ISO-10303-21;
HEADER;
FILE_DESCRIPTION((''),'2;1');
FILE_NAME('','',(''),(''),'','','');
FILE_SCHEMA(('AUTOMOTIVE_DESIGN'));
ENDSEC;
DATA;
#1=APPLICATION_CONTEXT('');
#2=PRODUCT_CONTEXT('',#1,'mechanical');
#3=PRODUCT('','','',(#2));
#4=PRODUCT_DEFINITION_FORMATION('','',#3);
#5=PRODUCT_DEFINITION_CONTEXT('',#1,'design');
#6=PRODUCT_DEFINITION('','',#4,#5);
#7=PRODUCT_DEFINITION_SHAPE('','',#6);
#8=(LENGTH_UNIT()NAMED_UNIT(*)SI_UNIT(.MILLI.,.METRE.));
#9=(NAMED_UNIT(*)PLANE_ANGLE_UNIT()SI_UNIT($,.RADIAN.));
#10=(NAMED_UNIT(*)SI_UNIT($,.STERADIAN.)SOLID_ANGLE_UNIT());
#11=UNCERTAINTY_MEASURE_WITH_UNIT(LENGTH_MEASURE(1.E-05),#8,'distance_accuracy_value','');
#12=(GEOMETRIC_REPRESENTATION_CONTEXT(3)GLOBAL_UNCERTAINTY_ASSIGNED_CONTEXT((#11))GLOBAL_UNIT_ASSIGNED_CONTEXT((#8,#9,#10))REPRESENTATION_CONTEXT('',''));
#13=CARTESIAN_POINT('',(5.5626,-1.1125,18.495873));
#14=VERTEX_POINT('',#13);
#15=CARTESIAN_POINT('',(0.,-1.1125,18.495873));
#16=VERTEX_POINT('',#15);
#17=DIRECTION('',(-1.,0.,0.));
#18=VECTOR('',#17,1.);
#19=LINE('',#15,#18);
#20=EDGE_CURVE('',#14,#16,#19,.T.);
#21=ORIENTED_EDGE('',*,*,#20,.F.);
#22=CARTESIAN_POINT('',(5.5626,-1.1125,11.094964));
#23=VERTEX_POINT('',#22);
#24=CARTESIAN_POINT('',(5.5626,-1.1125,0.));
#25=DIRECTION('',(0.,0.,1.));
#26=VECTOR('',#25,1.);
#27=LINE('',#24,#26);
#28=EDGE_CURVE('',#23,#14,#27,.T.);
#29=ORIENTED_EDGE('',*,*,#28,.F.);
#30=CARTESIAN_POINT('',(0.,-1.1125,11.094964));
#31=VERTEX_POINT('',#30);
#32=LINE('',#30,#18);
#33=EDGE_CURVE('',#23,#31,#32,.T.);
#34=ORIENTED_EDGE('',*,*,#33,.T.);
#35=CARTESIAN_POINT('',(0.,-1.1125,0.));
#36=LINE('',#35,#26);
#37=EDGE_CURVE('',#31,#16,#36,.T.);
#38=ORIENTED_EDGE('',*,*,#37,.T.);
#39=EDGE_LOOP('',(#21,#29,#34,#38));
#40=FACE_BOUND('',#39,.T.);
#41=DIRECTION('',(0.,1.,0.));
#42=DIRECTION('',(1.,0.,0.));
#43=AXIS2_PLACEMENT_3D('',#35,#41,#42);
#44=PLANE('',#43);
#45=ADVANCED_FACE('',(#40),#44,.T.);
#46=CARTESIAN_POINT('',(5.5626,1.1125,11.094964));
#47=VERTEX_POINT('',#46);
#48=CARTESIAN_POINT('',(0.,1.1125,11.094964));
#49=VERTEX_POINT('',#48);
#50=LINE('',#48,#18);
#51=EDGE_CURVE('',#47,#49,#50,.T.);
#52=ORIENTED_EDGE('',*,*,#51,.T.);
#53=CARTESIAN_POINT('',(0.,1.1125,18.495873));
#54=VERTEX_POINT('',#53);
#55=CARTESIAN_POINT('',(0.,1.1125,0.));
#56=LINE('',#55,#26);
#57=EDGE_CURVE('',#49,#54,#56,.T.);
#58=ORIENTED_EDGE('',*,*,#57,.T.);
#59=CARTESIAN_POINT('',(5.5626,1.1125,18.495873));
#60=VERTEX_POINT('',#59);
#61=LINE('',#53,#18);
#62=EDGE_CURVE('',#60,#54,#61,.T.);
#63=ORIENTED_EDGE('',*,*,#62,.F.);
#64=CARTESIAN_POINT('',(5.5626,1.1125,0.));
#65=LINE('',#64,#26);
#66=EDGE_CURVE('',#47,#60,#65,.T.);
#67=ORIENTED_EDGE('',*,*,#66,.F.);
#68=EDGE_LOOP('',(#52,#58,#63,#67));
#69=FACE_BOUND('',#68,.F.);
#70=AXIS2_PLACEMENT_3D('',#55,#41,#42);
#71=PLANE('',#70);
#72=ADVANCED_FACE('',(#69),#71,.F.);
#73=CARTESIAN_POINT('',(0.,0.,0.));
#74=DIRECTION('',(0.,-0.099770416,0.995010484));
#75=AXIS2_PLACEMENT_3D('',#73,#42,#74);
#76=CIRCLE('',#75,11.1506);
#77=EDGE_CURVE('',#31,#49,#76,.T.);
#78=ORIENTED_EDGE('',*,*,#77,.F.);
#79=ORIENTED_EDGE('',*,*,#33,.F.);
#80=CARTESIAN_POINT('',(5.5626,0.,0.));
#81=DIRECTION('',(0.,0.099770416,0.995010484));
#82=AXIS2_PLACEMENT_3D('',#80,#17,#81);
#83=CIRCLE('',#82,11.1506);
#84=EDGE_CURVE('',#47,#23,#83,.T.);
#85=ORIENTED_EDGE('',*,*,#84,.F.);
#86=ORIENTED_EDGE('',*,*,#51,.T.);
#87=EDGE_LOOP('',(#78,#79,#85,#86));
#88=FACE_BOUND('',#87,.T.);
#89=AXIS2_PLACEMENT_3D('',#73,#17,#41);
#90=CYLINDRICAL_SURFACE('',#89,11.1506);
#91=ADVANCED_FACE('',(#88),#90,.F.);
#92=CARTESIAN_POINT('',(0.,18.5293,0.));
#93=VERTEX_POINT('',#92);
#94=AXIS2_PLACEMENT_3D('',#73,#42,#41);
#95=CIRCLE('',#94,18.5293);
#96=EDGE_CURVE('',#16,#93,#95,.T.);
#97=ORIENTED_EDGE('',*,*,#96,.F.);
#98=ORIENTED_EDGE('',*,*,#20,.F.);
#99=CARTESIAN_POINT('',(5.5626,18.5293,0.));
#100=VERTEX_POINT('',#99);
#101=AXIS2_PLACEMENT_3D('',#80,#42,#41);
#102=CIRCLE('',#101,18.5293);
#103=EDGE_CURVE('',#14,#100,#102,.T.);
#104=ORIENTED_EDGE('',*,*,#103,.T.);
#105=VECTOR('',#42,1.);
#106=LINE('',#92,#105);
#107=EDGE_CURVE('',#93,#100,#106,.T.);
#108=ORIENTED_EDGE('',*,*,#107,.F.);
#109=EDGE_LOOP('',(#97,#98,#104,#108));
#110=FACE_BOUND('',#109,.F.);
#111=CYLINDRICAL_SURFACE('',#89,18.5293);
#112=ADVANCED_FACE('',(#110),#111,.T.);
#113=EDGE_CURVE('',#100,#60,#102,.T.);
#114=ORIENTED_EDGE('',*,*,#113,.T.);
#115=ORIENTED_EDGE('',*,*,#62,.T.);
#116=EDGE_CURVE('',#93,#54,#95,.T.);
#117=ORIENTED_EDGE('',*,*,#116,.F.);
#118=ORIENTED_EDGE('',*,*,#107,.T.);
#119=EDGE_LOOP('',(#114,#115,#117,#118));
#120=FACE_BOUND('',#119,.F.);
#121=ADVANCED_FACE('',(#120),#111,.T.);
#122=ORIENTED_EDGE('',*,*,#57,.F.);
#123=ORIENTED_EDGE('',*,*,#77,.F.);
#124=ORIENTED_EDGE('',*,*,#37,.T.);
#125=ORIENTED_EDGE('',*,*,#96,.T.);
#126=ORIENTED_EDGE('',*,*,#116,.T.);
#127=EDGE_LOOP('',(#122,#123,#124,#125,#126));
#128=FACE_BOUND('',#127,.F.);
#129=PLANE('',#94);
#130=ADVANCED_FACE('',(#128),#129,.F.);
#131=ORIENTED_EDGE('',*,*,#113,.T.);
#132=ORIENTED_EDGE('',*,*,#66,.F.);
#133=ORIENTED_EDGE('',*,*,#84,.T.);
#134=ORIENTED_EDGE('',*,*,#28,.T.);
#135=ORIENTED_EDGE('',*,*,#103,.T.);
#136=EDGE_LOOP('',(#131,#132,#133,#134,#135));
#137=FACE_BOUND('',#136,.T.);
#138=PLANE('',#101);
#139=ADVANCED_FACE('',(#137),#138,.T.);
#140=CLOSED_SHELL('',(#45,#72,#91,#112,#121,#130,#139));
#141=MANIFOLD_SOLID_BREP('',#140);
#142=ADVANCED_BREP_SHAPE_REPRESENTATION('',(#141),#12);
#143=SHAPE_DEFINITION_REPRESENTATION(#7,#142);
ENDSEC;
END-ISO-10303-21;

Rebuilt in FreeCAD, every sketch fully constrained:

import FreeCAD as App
import Part
import Sketcher
Q = App.Units.Quantity

doc = App.newDocument("Part")
body = doc.addObject("PartDesign::Body", "Body")

# Sketch on YZ plane
sketch1 = body.newObject("Sketcher::SketchObject", "Sketch")
sketch1.AttachmentSupport = (doc.getObject("YZ_Plane"), [""])
sketch1.MapMode = "FlatFace"
sketch1.addGeometry([
    Part.Circle(App.Vector(0, 0, 0), App.Vector(0, 0, 1), 19),
    Part.Circle(App.Vector(0, 0, 0), App.Vector(0, 0, 1), 11),
], False)
sketch1.addConstraint([
    Sketcher.Constraint("Coincident", 0, 3, -1, 1),
    Sketcher.Constraint("Coincident", 1, 3, -1, 1),
    Sketcher.Constraint("Diameter", 0, Q("1.459 in")),
    Sketcher.Constraint("Diameter", 1, Q("0.878 in")),
])
pad1 = body.newObject("PartDesign::Pad", "Pad")
pad1.Profile = sketch1
pad1.Length = Q("0.219 in")

# Sketch on XY plane
sketch2 = body.newObject("Sketcher::SketchObject", "Sketch001")
sketch2.AttachmentSupport = (doc.getObject("XY_Plane"), [""])
sketch2.MapMode = "FlatFace"
sketch2.addGeometry([
    Part.LineSegment(App.Vector(0, -1.1, 0), App.Vector(5.6, -1.1, 0)),
    Part.LineSegment(App.Vector(5.6, -1.1, 0), App.Vector(5.6, 1.1, 0)),
    Part.LineSegment(App.Vector(5.6, 1.1, 0), App.Vector(0, 1.1, 0)),
    Part.LineSegment(App.Vector(0, 1.1, 0), App.Vector(0, -1.1, 0)),
], False)
sketch2.addConstraint([
    Sketcher.Constraint("Coincident", 0, 2, 1, 1),
    Sketcher.Constraint("Coincident", 1, 2, 2, 1),
    Sketcher.Constraint("Coincident", 2, 2, 3, 1),
    Sketcher.Constraint("Coincident", 3, 2, 0, 1),
    Sketcher.Constraint("Horizontal", 0),
    Sketcher.Constraint("Vertical", 1),
    Sketcher.Constraint("Horizontal", 2),
    Sketcher.Constraint("Vertical", 3),
    Sketcher.Constraint("Symmetric", 2, 2, 3, 2, -1, 1),
    Sketcher.Constraint("DistanceY", 0, 2, -1, 1, Q("0.0438 in")),
    Sketcher.Constraint("DistanceX", 0, 1, 0, 2, Q("0.219 in")),
])
pocket1 = body.newObject("PartDesign::Pocket", "Pocket")
pocket1.Profile = sketch2
pocket1.Length = 18.4959
pocket1.Reversed = True

doc.recompute()
